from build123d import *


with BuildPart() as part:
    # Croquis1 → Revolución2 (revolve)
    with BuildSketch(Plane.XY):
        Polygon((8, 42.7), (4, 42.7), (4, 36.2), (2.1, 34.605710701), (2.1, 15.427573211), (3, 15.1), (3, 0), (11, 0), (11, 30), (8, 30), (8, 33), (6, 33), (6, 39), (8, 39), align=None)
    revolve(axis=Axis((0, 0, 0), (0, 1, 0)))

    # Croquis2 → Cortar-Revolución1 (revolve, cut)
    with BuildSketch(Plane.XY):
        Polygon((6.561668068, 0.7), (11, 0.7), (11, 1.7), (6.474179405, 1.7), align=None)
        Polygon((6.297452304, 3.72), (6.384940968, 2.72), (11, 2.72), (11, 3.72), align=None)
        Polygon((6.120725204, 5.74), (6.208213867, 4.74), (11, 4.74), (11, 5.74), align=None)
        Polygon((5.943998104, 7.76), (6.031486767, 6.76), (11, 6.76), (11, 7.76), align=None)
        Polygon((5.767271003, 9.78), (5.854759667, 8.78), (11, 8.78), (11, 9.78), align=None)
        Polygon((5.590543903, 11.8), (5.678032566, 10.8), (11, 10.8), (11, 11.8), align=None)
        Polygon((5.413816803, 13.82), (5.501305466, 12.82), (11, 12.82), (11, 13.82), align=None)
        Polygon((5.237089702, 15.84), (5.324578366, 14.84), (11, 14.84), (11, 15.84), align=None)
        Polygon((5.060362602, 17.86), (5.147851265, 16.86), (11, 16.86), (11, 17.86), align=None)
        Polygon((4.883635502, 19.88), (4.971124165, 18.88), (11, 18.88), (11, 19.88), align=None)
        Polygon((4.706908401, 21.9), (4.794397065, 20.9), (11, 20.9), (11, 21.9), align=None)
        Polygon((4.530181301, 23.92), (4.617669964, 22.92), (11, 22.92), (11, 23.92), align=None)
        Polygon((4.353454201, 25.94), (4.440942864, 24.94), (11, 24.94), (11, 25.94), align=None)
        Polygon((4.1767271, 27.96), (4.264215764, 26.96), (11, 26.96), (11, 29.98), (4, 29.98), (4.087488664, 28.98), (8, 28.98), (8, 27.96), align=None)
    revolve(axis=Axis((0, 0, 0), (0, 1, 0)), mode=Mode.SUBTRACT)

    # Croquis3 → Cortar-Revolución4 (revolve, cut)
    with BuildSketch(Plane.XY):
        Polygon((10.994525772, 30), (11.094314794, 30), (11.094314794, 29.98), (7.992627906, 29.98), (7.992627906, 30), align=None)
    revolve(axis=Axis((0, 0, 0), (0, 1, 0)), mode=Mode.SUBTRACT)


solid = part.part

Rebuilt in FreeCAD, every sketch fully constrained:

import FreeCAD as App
import Part
import Sketcher

V = App.Vector
Q = App.Units.Quantity

doc = App.newDocument("Part")
body = doc.addObject("PartDesign::Body", "Body")

# Sketch on XY plane
sketch1 = body.newObject("Sketcher::SketchObject", "Sketch")
sketch1.AttachmentSupport = (doc.getObject("XY_Plane"), [""])
sketch1.MapMode = "FlatFace"
sketch1.addGeometry(Part.LineSegment(V(8, 42.7, 0), V(4, 42.7, 0)), False)
sketch1.addGeometry(Part.LineSegment(V(4, 42.7, 0), V(4, 36.2, 0)), False)
sketch1.addGeometry(Part.LineSegment(V(4, 36.2, 0), V(2.1, 34.605711, 0)), False)
sketch1.addGeometry(Part.LineSegment(V(2.1, 34.605711, 0), V(2.1, 15.427573, 0)), False)
sketch1.addGeometry(Part.LineSegment(V(2.1, 15.427573, 0), V(3, 15.1, 0)), False)
sketch1.addGeometry(Part.LineSegment(V(3, 15.1, 0), V(3, 0, 0)), False)
sketch1.addGeometry(Part.LineSegment(V(3, 0, 0), V(11, 0, 0)), False)
sketch1.addGeometry(Part.LineSegment(V(11, 0, 0), V(11, 30, 0)), False)
sketch1.addGeometry(Part.LineSegment(V(11, 30, 0), V(8, 30, 0)), False)
sketch1.addGeometry(Part.LineSegment(V(8, 30, 0), V(8, 33, 0)), False)
sketch1.addGeometry(Part.LineSegment(V(8, 33, 0), V(6, 33, 0)), False)
sketch1.addGeometry(Part.LineSegment(V(6, 33, 0), V(6, 39, 0)), False)
sketch1.addGeometry(Part.LineSegment(V(6, 39, 0), V(8, 39, 0)), False)
sketch1.addGeometry(Part.LineSegment(V(8, 39, 0), V(8, 42.7, 0)), False)
sketch1.addConstraint(Sketcher.Constraint("Coincident", 0, 2, 1, 1))
sketch1.addConstraint(Sketcher.Constraint("Coincident", 1, 2, 2, 1))
sketch1.addConstraint(Sketcher.Constraint("Coincident", 2, 2, 3, 1))
sketch1.addConstraint(Sketcher.Constraint("Coincident", 3, 2, 4, 1))
sketch1.addConstraint(Sketcher.Constraint("Coincident", 4, 2, 5, 1))
sketch1.addConstraint(Sketcher.Constraint("Coincident", 5, 2, 6, 1))
sketch1.addConstraint(Sketcher.Constraint("Coincident", 6, 2, 7, 1))
sketch1.addConstraint(Sketcher.Constraint("Coincident", 7, 2, 8, 1))
sketch1.addConstraint(Sketcher.Constraint("Coincident", 8, 2, 9, 1))
sketch1.addConstraint(Sketcher.Constraint("Coincident", 9, 2, 10, 1))
sketch1.addConstraint(Sketcher.Constraint("Coincident", 10, 2, 11, 1))
sketch1.addConstraint(Sketcher.Constraint("Coincident", 11, 2, 12, 1))
sketch1.addConstraint(Sketcher.Constraint("Coincident", 12, 2, 13, 1))
sketch1.addConstraint(Sketcher.Constraint("Coincident", 13, 2, 0, 1))
sketch1.addConstraint(Sketcher.Constraint("Horizontal", 0))
sketch1.addConstraint(Sketcher.Constraint("Vertical", 1))
sketch1.addConstraint(Sketcher.Constraint("Vertical", 3))
sketch1.addConstraint(Sketcher.Constraint("Vertical", 5))
sketch1.addConstraint(Sketcher.Constraint("Horizontal", 6))
sketch1.addConstraint(Sketcher.Constraint("Vertical", 7))
sketch1.addConstraint(Sketcher.Constraint("Horizontal", 8))
sketch1.addConstraint(Sketcher.Constraint("Vertical", 9))
sketch1.addConstraint(Sketcher.Constraint("Horizontal", 10))
sketch1.addConstraint(Sketcher.Constraint("Vertical", 11))
sketch1.addConstraint(Sketcher.Constraint("Horizontal", 12))
sketch1.addConstraint(Sketcher.Constraint("Vertical", 13))
sketch1.addConstraint(Sketcher.Constraint("PointOnObject", 5, 2, -1))
sketch1.addConstraint(Sketcher.Constraint("Vertical", 9, 2, 12, 2))
sketch1.addConstraint(Sketcher.Constraint("Equal", 8, 9))
sketch1.addConstraint(Sketcher.Constraint("DistanceX", 0, 2, 0, 1, 4.0))
sketch1.addConstraint(Sketcher.Constraint("DistanceX", 6, 1, 6, 2, 8.0))
sketch1.addConstraint(Sketcher.Constraint("DistanceX", 8, 2, 8, 1, 3.0))
sketch1.addConstraint(Sketcher.Constraint("DistanceX", 10, 2, 10, 1, 2.0))
sketch1.addConstraint(Sketcher.Constraint("DistanceY", 7, 1, 7, 2, 30.0))
sketch1.addConstraint(Sketcher.Constraint("DistanceY", 11, 1, 11, 2, 6.0))
sketch1.addConstraint(Sketcher.Constraint("Angle", 2, Q("-140 deg")))
sketch1.addConstraint(Sketcher.Constraint("Angle", 4, Q("-20 deg")))
sketch1.addConstraint(Sketcher.Constraint("DistanceY", 1, 2, 1, 1, 6.5))
sketch1.addConstraint(Sketcher.Constraint("DistanceY", 5, 2, 5, 1, 15.1))
sketch1.addConstraint(Sketcher.Constraint("DistanceY", 13, 1, 13, 2, 3.7))
sketch1.addConstraint(Sketcher.Constraint("DistanceX", -1, 1, 0, 2, 4.0))
sketch1.addConstraint(Sketcher.Constraint("DistanceX", -1, 1, 2, 2, 2.1))
revolution = body.newObject("PartDesign::Revolution", "Revolution")
revolution.Profile = sketch1
revolution.ReferenceAxis = (sketch1, ["V_Axis"])
revolution.Angle = 360

# Sketch on XY plane
sketch2 = body.newObject("Sketcher::SketchObject", "Sketch001")
sketch2.AttachmentSupport = (doc.getObject("XY_Plane"), [""])
sketch2.MapMode = "FlatFace"
sketch2.addGeometry(Part.LineSegment(V(6.561668, 0.7, 0), V(11, 0.7, 0)), False)
sketch2.addGeometry(Part.LineSegment(V(11, 0.7, 0), V(11, 1.7, 0)), False)
sketch2.addGeometry(Part.LineSegment(V(11, 1.7, 0), V(6.474179, 1.7, 0)), False)
sketch2.addGeometry(Part.LineSegment(V(6.474179, 1.7, 0), V(6.561668, 0.7, 0)), False)
sketch2.addGeometry(Part.LineSegment(V(6.297452, 3.72, 0), V(6.384941, 2.72, 0)), False)
sketch2.addGeometry(Part.LineSegment(V(6.384941, 2.72, 0), V(11, 2.72, 0)), False)
sketch2.addGeometry(Part.LineSegment(V(11, 2.72, 0), V(11, 3.72, 0)), False)
sketch2.addGeometry(Part.LineSegment(V(11, 3.72, 0), V(6.297452, 3.72, 0)), False)
sketch2.addGeometry(Part.LineSegment(V(6.120725, 5.74, 0), V(6.208214, 4.74, 0)), False)
sketch2.addGeometry(Part.LineSegment(V(6.208214, 4.74, 0), V(11, 4.74, 0)), False)
sketch2.addGeometry(Part.LineSegment(V(11, 4.74, 0), V(11, 5.74, 0)), False)
sketch2.addGeometry(Part.LineSegment(V(11, 5.74, 0), V(6.120725, 5.74, 0)), False)
sketch2.addGeometry(Part.LineSegment(V(5.943998, 7.76, 0), V(6.031487, 6.76, 0)), False)
sketch2.addGeometry(Part.LineSegment(V(6.031487, 6.76, 0), V(11, 6.76, 0)), False)
sketch2.addGeometry(Part.LineSegment(V(11, 6.76, 0), V(11, 7.76, 0)), False)
sketch2.addGeometry(Part.LineSegment(V(11, 7.76, 0), V(5.943998, 7.76, 0)), False)
sketch2.addGeometry(Part.LineSegment(V(5.767271, 9.78, 0), V(5.85476, 8.78, 0)), False)
sketch2.addGeometry(Part.LineSegment(V(5.85476, 8.78, 0), V(11, 8.78, 0)), False)
sketch2.addGeometry(Part.LineSegment(V(11, 8.78, 0), V(11, 9.78, 0)), False)
sketch2.addGeometry(Part.LineSegment(V(11, 9.78, 0), V(5.767271, 9.78, 0)), False)
sketch2.addGeometry(Part.LineSegment(V(5.590544, 11.8, 0), V(5.678033, 10.8, 0)), False)
sketch2.addGeometry(Part.LineSegment(V(5.678033, 10.8, 0), V(11, 10.8, 0)), False)
sketch2.addGeometry(Part.LineSegment(V(11, 10.8, 0), V(11, 11.8, 0)), False)
sketch2.addGeometry(Part.LineSegment(V(11, 11.8, 0), V(5.590544, 11.8, 0)), False)
sketch2.addGeometry(Part.LineSegment(V(5.413817, 13.82, 0), V(5.501305, 12.82, 0)), False)
sketch2.addGeometry(Part.LineSegment(V(5.501305, 12.82, 0), V(11, 12.82, 0)), False)
sketch2.addGeometry(Part.LineSegment(V(11, 12.82, 0), V(11, 13.82, 0)), False)
sketch2.addGeometry(Part.LineSegment(V(11, 13.82, 0), V(5.413817, 13.82, 0)), False)
sketch2.addGeometry(Part.LineSegment(V(5.23709, 15.84, 0), V(5.324578, 14.84, 0)), False)
sketch2.addGeometry(Part.LineSegment(V(5.324578, 14.84, 0), V(11, 14.84, 0)), False)
sketch2.addGeometry(Part.LineSegment(V(11, 14.84, 0), V(11, 15.84, 0)), False)
sketch2.addGeometry(Part.LineSegment(V(11, 15.84, 0), V(5.23709, 15.84, 0)), False)
sketch2.addGeometry(Part.LineSegment(V(5.060363, 17.86, 0), V(5.147851, 16.86, 0)), False)
sketch2.addGeometry(Part.LineSegment(V(5.147851, 16.86, 0), V(11, 16.86, 0)), False)
sketch2.addGeometry(Part.LineSegment(V(11, 16.86, 0), V(11, 17.86, 0)), False)
sketch2.addGeometry(Part.LineSegment(V(11, 17.86, 0), V(5.060363, 17.86, 0)), False)
sketch2.addGeometry(Part.LineSegment(V(4.883636, 19.88, 0), V(4.971124, 18.88, 0)), False)
sketch2.addGeometry(Part.LineSegment(V(4.971124, 18.88, 0), V(11, 18.88, 0)), False)
sketch2.addGeometry(Part.LineSegment(V(11, 18.88, 0), V(11, 19.88, 0)), False)
sketch2.addGeometry(Part.LineSegment(V(11, 19.88, 0), V(4.883636, 19.88, 0)), False)
sketch2.addGeometry(Part.LineSegment(V(4.706908, 21.9, 0), V(4.794397, 20.9, 0)), False)
sketch2.addGeometry(Part.LineSegment(V(4.794397, 20.9, 0), V(11, 20.9, 0)), False)
sketch2.addGeometry(Part.LineSegment(V(11, 20.9, 0), V(11, 21.9, 0)), False)
sketch2.addGeometry(Part.LineSegment(V(11, 21.9, 0), V(4.706908, 21.9, 0)), False)
sketch2.addGeometry(Part.LineSegment(V(4.530181, 23.92, 0), V(4.61767, 22.92, 0)), False)
sketch2.addGeometry(Part.LineSegment(V(4.61767, 22.92, 0), V(11, 22.92, 0)), False)
sketch2.addGeometry(Part.LineSegment(V(11, 22.92, 0), V(11, 23.92, 0)), False)
sketch2.addGeometry(Part.LineSegment(V(11, 23.92, 0), V(4.530181, 23.92, 0)), False)
sketch2.addGeometry(Part.LineSegment(V(4.353454, 25.94, 0), V(4.440943, 24.94, 0)), False)
sketch2.addGeometry(Part.LineSegment(V(4.440943, 24.94, 0), V(11, 24.94, 0)), False)
sketch2.addGeometry(Part.LineSegment(V(11, 24.94, 0), V(11, 25.94, 0)), False)
sketch2.addGeometry(Part.LineSegment(V(11, 25.94, 0), V(4.353454, 25.94, 0)), False)
sketch2.addGeometry(Part.LineSegment(V(4.176727, 27.96, 0), V(4.264216, 26.96, 0)), False)
sketch2.addGeometry(Part.LineSegment(V(4.264216, 26.96, 0), V(11, 26.96, 0)), False)
sketch2.addGeometry(Part.LineSegment(V(11, 26.96, 0), V(11, 29.98, 0)), False)
sketch2.addGeometry(Part.LineSegment(V(11, 29.98, 0), V(4, 29.98, 0)), False)
sketch2.addGeometry(Part.LineSegment(V(4, 29.98, 0), V(4.087489, 28.98, 0)), False)
sketch2.addGeometry(Part.LineSegment(V(4.087489, 28.98, 0), V(8, 28.98, 0)), False)
sketch2.addGeometry(Part.LineSegment(V(8, 28.98, 0), V(8, 27.96, 0)), False)
sketch2.addGeometry(Part.LineSegment(V(8, 27.96, 0), V(4.176727, 27.96, 0)), False)
sketch2.addConstraint(Sketcher.Constraint("Coincident", 0, 2, 1, 1))
sketch2.addConstraint(Sketcher.Constraint("Coincident", 1, 2, 2, 1))
sketch2.addConstraint(Sketcher.Constraint("Coincident", 2, 2, 3, 1))
sketch2.addConstraint(Sketcher.Constraint("Coincident", 3, 2, 0, 1))
sketch2.addConstraint(Sketcher.Constraint("Coincident", 4, 2, 5, 1))
sketch2.addConstraint(Sketcher.Constraint("Coincident", 5, 2, 6, 1))
sketch2.addConstraint(Sketcher.Constraint("Coincident", 6, 2, 7, 1))
sketch2.addConstraint(Sketcher.Constraint("Coincident", 7, 2, 4, 1))
sketch2.addConstraint(Sketcher.Constraint("Coincident", 8, 2, 9, 1))
sketch2.addConstraint(Sketcher.Constraint("Coincident", 9, 2, 10, 1))
sketch2.addConstraint(Sketcher.Constraint("Coincident", 10, 2, 11, 1))
sketch2.addConstraint(Sketcher.Constraint("Coincident", 11, 2, 8, 1))
sketch2.addConstraint(Sketcher.Constraint("Coincident", 12, 2, 13, 1))
sketch2.addConstraint(Sketcher.Constraint("Coincident", 13, 2, 14, 1))
sketch2.addConstraint(Sketcher.Constraint("Coincident", 14, 2, 15, 1))
sketch2.addConstraint(Sketcher.Constraint("Coincident", 15, 2, 12, 1))
sketch2.addConstraint(Sketcher.Constraint("Coincident", 16, 2, 17, 1))
sketch2.addConstraint(Sketcher.Constraint("Coincident", 17, 2, 18, 1))
sketch2.addConstraint(Sketcher.Constraint("Coincident", 18, 2, 19, 1))
sketch2.addConstraint(Sketcher.Constraint("Coincident", 19, 2, 16, 1))
sketch2.addConstraint(Sketcher.Constraint("Coincident", 20, 2, 21, 1))
sketch2.addConstraint(Sketcher.Constraint("Coincident", 21, 2, 22, 1))
sketch2.addConstraint(Sketcher.Constraint("Coincident", 22, 2, 23, 1))
sketch2.addConstraint(Sketcher.Constraint("Coincident", 23, 2, 20, 1))
sketch2.addConstraint(Sketcher.Constraint("Coincident", 24, 2, 25, 1))
sketch2.addConstraint(Sketcher.Constraint("Coincident", 25, 2, 26, 1))
sketch2.addConstraint(Sketcher.Constraint("Coincident", 26, 2, 27, 1))
sketch2.addConstraint(Sketcher.Constraint("Coincident", 27, 2, 24, 1))
sketch2.addConstraint(Sketcher.Constraint("Coincident", 28, 2, 29, 1))
sketch2.addConstraint(Sketcher.Constraint("Coincident", 29, 2, 30, 1))
sketch2.addConstraint(Sketcher.Constraint("Coincident", 30, 2, 31, 1))
sketch2.addConstraint(Sketcher.Constraint("Coincident", 31, 2, 28, 1))
sketch2.addConstraint(Sketcher.Constraint("Coincident", 32, 2, 33, 1))
sketch2.addConstraint(Sketcher.Constraint("Coincident", 33, 2, 34, 1))
sketch2.addConstraint(Sketcher.Constraint("Coincident", 34, 2, 35, 1))
sketch2.addConstraint(Sketcher.Constraint("Coincident", 35, 2, 32, 1))
sketch2.addConstraint(Sketcher.Constraint("Coincident", 36, 2, 37, 1))
sketch2.addConstraint(Sketcher.Constraint("Coincident", 37, 2, 38, 1))
sketch2.addConstraint(Sketcher.Constraint("Coincident", 38, 2, 39, 1))
sketch2.addConstraint(Sketcher.Constraint("Coincident", 39, 2, 36, 1))
sketch2.addConstraint(Sketcher.Constraint("Coincident", 40, 2, 41, 1))
sketch2.addConstraint(Sketcher.Constraint("Coincident", 41, 2, 42, 1))
sketch2.addConstraint(Sketcher.Constraint("Coincident", 42, 2, 43, 1))
sketch2.addConstraint(Sketcher.Constraint("Coincident", 43, 2, 40, 1))
sketch2.addConstraint(Sketcher.Constraint("Coincident", 44, 2, 45, 1))
sketch2.addConstraint(Sketcher.Constraint("Coincident", 45, 2, 46, 1))
sketch2.addConstraint(Sketcher.Constraint("Coincident", 46, 2, 47, 1))
sketch2.addConstraint(Sketcher.Constraint("Coincident", 47, 2, 44, 1))
sketch2.addConstraint(Sketcher.Constraint("Coincident", 48, 2, 49, 1))
sketch2.addConstraint(Sketcher.Constraint("Coincident", 49, 2, 50, 1))
sketch2.addConstraint(Sketcher.Constraint("Coincident", 50, 2, 51, 1))
sketch2.addConstraint(Sketcher.Constraint("Coincident", 51, 2, 48, 1))
sketch2.addConstraint(Sketcher.Constraint("Coincident", 52, 2, 53, 1))
sketch2.addConstraint(Sketcher.Constraint("Coincident", 53, 2, 54, 1))
sketch2.addConstraint(Sketcher.Constraint("Coincident", 54, 2, 55, 1))
sketch2.addConstraint(Sketcher.Constraint("Coincident", 55, 2, 56, 1))
sketch2.addConstraint(Sketcher.Constraint("Coincident", 56, 2, 57, 1))
sketch2.addConstraint(Sketcher.Constraint("Coincident", 57, 2, 58, 1))
sketch2.addConstraint(Sketcher.Constraint("Coincident", 58, 2, 59, 1))
sketch2.addConstraint(Sketcher.Constraint("Coincident", 59, 2, 52, 1))
sketch2.addConstraint(Sketcher.Constraint("Horizontal", 0))
sketch2.addConstraint(Sketcher.Constraint("Vertical", 1))
sketch2.addConstraint(Sketcher.Constraint("Horizontal", 2))
sketch2.addConstraint(Sketcher.Constraint("Horizontal", 5))
sketch2.addConstraint(Sketcher.Constraint("Vertical", 6))
sketch2.addConstraint(Sketcher.Constraint("Horizontal", 7))
sketch2.addConstraint(Sketcher.Constraint("Horizontal", 9))
sketch2.addConstraint(Sketcher.Constraint("Vertical", 10))
sketch2.addConstraint(Sketcher.Constraint("Horizontal", 11))
sketch2.addConstraint(Sketcher.Constraint("Horizontal", 13))
sketch2.addConstraint(Sketcher.Constraint("Vertical", 14))
sketch2.addConstraint(Sketcher.Constraint("Horizontal", 15))
sketch2.addConstraint(Sketcher.Constraint("Horizontal", 17))
sketch2.addConstraint(Sketcher.Constraint("Vertical", 18))
sketch2.addConstraint(Sketcher.Constraint("Horizontal", 19))
sketch2.addConstraint(Sketcher.Constraint("Horizontal", 21))
sketch2.addConstraint(Sketcher.Constraint("Vertical", 22))
sketch2.addConstraint(Sketcher.Constraint("Horizontal", 23))
sketch2.addConstraint(Sketcher.Constraint("Horizontal", 25))
sketch2.addConstraint(Sketcher.Constraint("Vertical", 26))
sketch2.addConstraint(Sketcher.Constraint("Horizontal", 27))
sketch2.addConstraint(Sketcher.Constraint("Horizontal", 29))
sketch2.addConstraint(Sketcher.Constraint("Vertical", 30))
sketch2.addConstraint(Sketcher.Constraint("Horizontal", 31))
sketch2.addConstraint(Sketcher.Constraint("Horizontal", 33))
sketch2.addConstraint(Sketcher.Constraint("Vertical", 34))
sketch2.addConstraint(Sketcher.Constraint("Horizontal", 35))
sketch2.addConstraint(Sketcher.Constraint("Horizontal", 37))
sketch2.addConstraint(Sketcher.Constraint("Vertical", 38))
sketch2.addConstraint(Sketcher.Constraint("Horizontal", 39))
sketch2.addConstraint(Sketcher.Constraint("Horizontal", 41))
sketch2.addConstraint(Sketcher.Constraint("Vertical", 42))
sketch2.addConstraint(Sketcher.Constraint("Horizontal", 43))
sketch2.addConstraint(Sketcher.Constraint("Horizontal", 45))
sketch2.addConstraint(Sketcher.Constraint("Vertical", 46))
sketch2.addConstraint(Sketcher.Constraint("Horizontal", 47))
sketch2.addConstraint(Sketcher.Constraint("Horizontal", 49))
sketch2.addConstraint(Sketcher.Constraint("Vertical", 50))
sketch2.addConstraint(Sketcher.Constraint("Horizontal", 51))
sketch2.addConstraint(Sketcher.Constraint("Horizontal", 53))
sketch2.addConstraint(Sketcher.Constraint("Vertical", 54))
sketch2.addConstraint(Sketcher.Constraint("Horizontal", 55))
sketch2.addConstraint(Sketcher.Constraint("Horizontal", 57))
sketch2.addConstraint(Sketcher.Constraint("Vertical", 58))
sketch2.addConstraint(Sketcher.Constraint("Horizontal", 59))
sketch2.addConstraint(Sketcher.Constraint("Parallel", 3, 4))
sketch2.addConstraint(Sketcher.Constraint("Parallel", 4, 8))
sketch2.addConstraint(Sketcher.Constraint("Parallel", 8, 12))
sketch2.addConstraint(Sketcher.Constraint("Parallel", 12, 16))
sketch2.addConstraint(Sketcher.Constraint("Parallel", 16, 20))
sketch2.addConstraint(Sketcher.Constraint("Parallel", 20, 24))
sketch2.addConstraint(Sketcher.Constraint("Parallel", 24, 28))
sketch2.addConstraint(Sketcher.Constraint("Parallel", 28, 32))
sketch2.addConstraint(Sketcher.Constraint("Parallel", 32, 36))
sketch2.addConstraint(Sketcher.Constraint("Parallel", 36, 40))
sketch2.addConstraint(Sketcher.Constraint("Parallel", 40, 44))
sketch2.addConstraint(Sketcher.Constraint("Parallel", 44, 48))
sketch2.addConstraint(Sketcher.Constraint("Parallel", 48, 52))
sketch2.addConstraint(Sketcher.Constraint("Parallel", 52, 56))
sketch2.addConstraint(Sketcher.Constraint("Vertical", 1, 2, 5, 2))
sketch2.addConstraint(Sketcher.Constraint("Vertical", 6, 2, 9, 2))
sketch2.addConstraint(Sketcher.Constraint("Vertical", 10, 2, 13, 2))
sketch2.addConstraint(Sketcher.Constraint("Vertical", 14, 2, 17, 2))
sketch2.addConstraint(Sketcher.Constraint("Vertical", 18, 2, 21, 2))
sketch2.addConstraint(Sketcher.Constraint("Vertical", 22, 2, 25, 2))
sketch2.addConstraint(Sketcher.Constraint("Vertical", 26, 2, 29, 2))
sketch2.addConstraint(Sketcher.Constraint("Vertical", 30, 2, 33, 2))
sketch2.addConstraint(Sketcher.Constraint("Vertical", 34, 2, 37, 2))
sketch2.addConstraint(Sketcher.Constraint("Vertical", 38, 2, 41, 2))
sketch2.addConstraint(Sketcher.Constraint("Vertical", 42, 2, 45, 2))
sketch2.addConstraint(Sketcher.Constraint("Vertical", 46, 2, 49, 2))
sketch2.addConstraint(Sketcher.Constraint("Vertical", 50, 2, 53, 2))
sketch2.addConstraint(Sketcher.Constraint("Equal", 1, 6))
sketch2.addConstraint(Sketcher.Constraint("Equal", 6, 10))
sketch2.addConstraint(Sketcher.Constraint("Equal", 10, 14))
sketch2.addConstraint(Sketcher.Constraint("Equal", 14, 18))
sketch2.addConstraint(Sketcher.Constraint("Equal", 18, 22))
sketch2.addConstraint(Sketcher.Constraint("Equal", 22, 26))
sketch2.addConstraint(Sketcher.Constraint("Equal", 26, 30))
sketch2.addConstraint(Sketcher.Constraint("Equal", 30, 34))
sketch2.addConstraint(Sketcher.Constraint("Equal", 34, 38))
sketch2.addConstraint(Sketcher.Constraint("Equal", 38, 42))
sketch2.addConstraint(Sketcher.Constraint("Equal", 42, 46))
sketch2.addConstraint(Sketcher.Constraint("Equal", 46, 50))
sketch2.addConstraint(Sketcher.Constraint("Equal", 48, 52))
sketch2.addConstraint(Sketcher.Constraint("Equal", 52, 56))
sketch2.addConstraint(Sketcher.Constraint("DistanceX", 55, 2, 55, 1, 7.0))
sketch2.addConstraint(Sketcher.Constraint("DistanceY", 1, 1, 1, 2, 1.0))
sketch2.addConstraint(Sketcher.Constraint("Angle", 3, Q("-85 deg")))
sketch2.addConstraint(Sketcher.Constraint("DistanceX", -1, 1, 0, 2, 11.0))
sketch2.addConstraint(Sketcher.Constraint("DistanceX", -1, 1, 57, 2, 8.0))
sketch2.addConstraint(Sketcher.Constraint("DistanceY", 54, 1, 54, 2, 3.02))
sketch2.addConstraint(Sketcher.Constraint("DistanceY", -1, 1, 0, 2, 0.7))
sketch2.addConstraint(Sketcher.Constraint("DistanceY", -1, 1, 20, 2, 10.8))
sketch2.addConstraint(Sketcher.Constraint("DistanceY", -1, 1, 40, 2, 20.9))
sketch2.addConstraint(Sketcher.Constraint("DistanceX", 15, 2, 15, 1, 5.056002))
sketch2.addConstraint(Sketcher.Constraint("DistanceY", -1, 1, 4, 2, 2.72))
sketch2.addConstraint(Sketcher.Constraint("DistanceY", -1, 1, 8, 2, 4.74))
sketch2.addConstraint(Sketcher.Constraint("DistanceY", -1, 1, 12, 2, 6.76))
sketch2.addConstraint(Sketcher.Constraint("DistanceY", -1, 1, 16, 2, 8.78))
sketch2.addConstraint(Sketcher.Constraint("DistanceY", -1, 1, 24, 2, 12.82))
sketch2.addConstraint(Sketcher.Constraint("DistanceY", -1, 1, 28, 2, 14.84))
sketch2.addConstraint(Sketcher.Constraint("DistanceY", -1, 1, 32, 2, 16.86))
sketch2.addConstraint(Sketcher.Constraint("DistanceY", -1, 1, 36, 2, 18.88))
sketch2.addConstraint(Sketcher.Constraint("DistanceY", -1, 1, 44, 2, 22.92))
sketch2.addConstraint(Sketcher.Constraint("DistanceY", -1, 1, 48, 2, 24.94))
sketch2.addConstraint(Sketcher.Constraint("DistanceY", -1, 1, 52, 2, 26.96))
sketch2.addConstraint(Sketcher.Constraint("DistanceX", 0, 1, 0, 2, 4.438332))
sketch2.addConstraint(Sketcher.Constraint("DistanceX", 5, 1, 5, 2, 4.615059))
sketch2.addConstraint(Sketcher.Constraint("DistanceX", 17, 1, 17, 2, 5.14524))
sketch2.addConstraint(Sketcher.Constraint("DistanceX", 29, 1, 29, 2, 5.675422))
sketch2.addConstraint(Sketcher.Constraint("DistanceX", 33, 1, 33, 2, 5.852149))
sketch2.addConstraint(Sketcher.Constraint("DistanceX", 43, 2, 43, 1, 6.293092))
sketch2.addConstraint(Sketcher.Constraint("DistanceX", 45, 1, 45, 2, 6.38233))
sketch2.addConstraint(Sketcher.Constraint("DistanceX", 9, 1, 9, 2, 4.791786))
sketch2.addConstraint(Sketcher.Constraint("DistanceX", 21, 1, 21, 2, 5.321967))
sketch2.addConstraint(Sketcher.Constraint("DistanceX", 25, 1, 25, 2, 5.498695))
sketch2.addConstraint(Sketcher.Constraint("DistanceX", 37, 1, 37, 2, 6.028876))
sketch2.addConstraint(Sketcher.Constraint("DistanceX", 49, 1, 49, 2, 6.559057))
sketch2.addConstraint(Sketcher.Constraint("DistanceX", 53, 1, 53, 2, 6.735784))
groove = body.newObject("PartDesign::Groove", "Groove")
groove.Profile = sketch2
groove.ReferenceAxis = (sketch2, ["V_Axis"])
groove.Angle = 360

# Sketch on XY plane
sketch3 = body.newObject("Sketcher::SketchObject", "Sketch002")
sketch3.AttachmentSupport = (doc.getObject("XY_Plane"), [""])
sketch3.MapMode = "FlatFace"
sketch3.addGeometry(Part.LineSegment(V(11.094315, 30, 0), V(7.992628, 30, 0)), False)
sketch3.addGeometry(Part.LineSegment(V(7.992628, 30, 0), V(7.992628, 29.98, 0)), False)
sketch3.addGeometry(Part.LineSegment(V(7.992628, 29.98, 0), V(11.094315, 29.98, 0)), False)
sketch3.addGeometry(Part.LineSegment(V(11.094315, 29.98, 0), V(11.094315, 30, 0)), False)
sketch3.addConstraint(Sketcher.Constraint("Coincident", 0, 2, 1, 1))
sketch3.addConstraint(Sketcher.Constraint("Coincident", 1, 2, 2, 1))
sketch3.addConstraint(Sketcher.Constraint("Coincident", 2, 2, 3, 1))
sketch3.addConstraint(Sketcher.Constraint("Coincident", 3, 2, 0, 1))
sketch3.addConstraint(Sketcher.Constraint("Horizontal", 0))
sketch3.addConstraint(Sketcher.Constraint("Vertical", 1))
sketch3.addConstraint(Sketcher.Constraint("Horizontal", 2))
sketch3.addConstraint(Sketcher.Constraint("Vertical", 3))
sketch3.addConstraint(Sketcher.Constraint("DistanceY", -1, 1, 0, 2, 30.0))
sketch3.addConstraint(Sketcher.Constraint("DistanceY", 1, 2, 1, 1, 0.02))
sketch3.addConstraint(Sketcher.Constraint("DistanceX", 0, 2, 0, 1, 3.101687))
sketch3.addConstraint(Sketcher.Constraint("DistanceX", -1, 1, 0, 2, 7.992628))
groove2 = body.newObject("PartDesign::Groove", "Groove001")
groove2.Profile = sketch3
groove2.ReferenceAxis = (sketch3, ["V_Axis"])
groove2.Angle = 360

doc.recompute()
